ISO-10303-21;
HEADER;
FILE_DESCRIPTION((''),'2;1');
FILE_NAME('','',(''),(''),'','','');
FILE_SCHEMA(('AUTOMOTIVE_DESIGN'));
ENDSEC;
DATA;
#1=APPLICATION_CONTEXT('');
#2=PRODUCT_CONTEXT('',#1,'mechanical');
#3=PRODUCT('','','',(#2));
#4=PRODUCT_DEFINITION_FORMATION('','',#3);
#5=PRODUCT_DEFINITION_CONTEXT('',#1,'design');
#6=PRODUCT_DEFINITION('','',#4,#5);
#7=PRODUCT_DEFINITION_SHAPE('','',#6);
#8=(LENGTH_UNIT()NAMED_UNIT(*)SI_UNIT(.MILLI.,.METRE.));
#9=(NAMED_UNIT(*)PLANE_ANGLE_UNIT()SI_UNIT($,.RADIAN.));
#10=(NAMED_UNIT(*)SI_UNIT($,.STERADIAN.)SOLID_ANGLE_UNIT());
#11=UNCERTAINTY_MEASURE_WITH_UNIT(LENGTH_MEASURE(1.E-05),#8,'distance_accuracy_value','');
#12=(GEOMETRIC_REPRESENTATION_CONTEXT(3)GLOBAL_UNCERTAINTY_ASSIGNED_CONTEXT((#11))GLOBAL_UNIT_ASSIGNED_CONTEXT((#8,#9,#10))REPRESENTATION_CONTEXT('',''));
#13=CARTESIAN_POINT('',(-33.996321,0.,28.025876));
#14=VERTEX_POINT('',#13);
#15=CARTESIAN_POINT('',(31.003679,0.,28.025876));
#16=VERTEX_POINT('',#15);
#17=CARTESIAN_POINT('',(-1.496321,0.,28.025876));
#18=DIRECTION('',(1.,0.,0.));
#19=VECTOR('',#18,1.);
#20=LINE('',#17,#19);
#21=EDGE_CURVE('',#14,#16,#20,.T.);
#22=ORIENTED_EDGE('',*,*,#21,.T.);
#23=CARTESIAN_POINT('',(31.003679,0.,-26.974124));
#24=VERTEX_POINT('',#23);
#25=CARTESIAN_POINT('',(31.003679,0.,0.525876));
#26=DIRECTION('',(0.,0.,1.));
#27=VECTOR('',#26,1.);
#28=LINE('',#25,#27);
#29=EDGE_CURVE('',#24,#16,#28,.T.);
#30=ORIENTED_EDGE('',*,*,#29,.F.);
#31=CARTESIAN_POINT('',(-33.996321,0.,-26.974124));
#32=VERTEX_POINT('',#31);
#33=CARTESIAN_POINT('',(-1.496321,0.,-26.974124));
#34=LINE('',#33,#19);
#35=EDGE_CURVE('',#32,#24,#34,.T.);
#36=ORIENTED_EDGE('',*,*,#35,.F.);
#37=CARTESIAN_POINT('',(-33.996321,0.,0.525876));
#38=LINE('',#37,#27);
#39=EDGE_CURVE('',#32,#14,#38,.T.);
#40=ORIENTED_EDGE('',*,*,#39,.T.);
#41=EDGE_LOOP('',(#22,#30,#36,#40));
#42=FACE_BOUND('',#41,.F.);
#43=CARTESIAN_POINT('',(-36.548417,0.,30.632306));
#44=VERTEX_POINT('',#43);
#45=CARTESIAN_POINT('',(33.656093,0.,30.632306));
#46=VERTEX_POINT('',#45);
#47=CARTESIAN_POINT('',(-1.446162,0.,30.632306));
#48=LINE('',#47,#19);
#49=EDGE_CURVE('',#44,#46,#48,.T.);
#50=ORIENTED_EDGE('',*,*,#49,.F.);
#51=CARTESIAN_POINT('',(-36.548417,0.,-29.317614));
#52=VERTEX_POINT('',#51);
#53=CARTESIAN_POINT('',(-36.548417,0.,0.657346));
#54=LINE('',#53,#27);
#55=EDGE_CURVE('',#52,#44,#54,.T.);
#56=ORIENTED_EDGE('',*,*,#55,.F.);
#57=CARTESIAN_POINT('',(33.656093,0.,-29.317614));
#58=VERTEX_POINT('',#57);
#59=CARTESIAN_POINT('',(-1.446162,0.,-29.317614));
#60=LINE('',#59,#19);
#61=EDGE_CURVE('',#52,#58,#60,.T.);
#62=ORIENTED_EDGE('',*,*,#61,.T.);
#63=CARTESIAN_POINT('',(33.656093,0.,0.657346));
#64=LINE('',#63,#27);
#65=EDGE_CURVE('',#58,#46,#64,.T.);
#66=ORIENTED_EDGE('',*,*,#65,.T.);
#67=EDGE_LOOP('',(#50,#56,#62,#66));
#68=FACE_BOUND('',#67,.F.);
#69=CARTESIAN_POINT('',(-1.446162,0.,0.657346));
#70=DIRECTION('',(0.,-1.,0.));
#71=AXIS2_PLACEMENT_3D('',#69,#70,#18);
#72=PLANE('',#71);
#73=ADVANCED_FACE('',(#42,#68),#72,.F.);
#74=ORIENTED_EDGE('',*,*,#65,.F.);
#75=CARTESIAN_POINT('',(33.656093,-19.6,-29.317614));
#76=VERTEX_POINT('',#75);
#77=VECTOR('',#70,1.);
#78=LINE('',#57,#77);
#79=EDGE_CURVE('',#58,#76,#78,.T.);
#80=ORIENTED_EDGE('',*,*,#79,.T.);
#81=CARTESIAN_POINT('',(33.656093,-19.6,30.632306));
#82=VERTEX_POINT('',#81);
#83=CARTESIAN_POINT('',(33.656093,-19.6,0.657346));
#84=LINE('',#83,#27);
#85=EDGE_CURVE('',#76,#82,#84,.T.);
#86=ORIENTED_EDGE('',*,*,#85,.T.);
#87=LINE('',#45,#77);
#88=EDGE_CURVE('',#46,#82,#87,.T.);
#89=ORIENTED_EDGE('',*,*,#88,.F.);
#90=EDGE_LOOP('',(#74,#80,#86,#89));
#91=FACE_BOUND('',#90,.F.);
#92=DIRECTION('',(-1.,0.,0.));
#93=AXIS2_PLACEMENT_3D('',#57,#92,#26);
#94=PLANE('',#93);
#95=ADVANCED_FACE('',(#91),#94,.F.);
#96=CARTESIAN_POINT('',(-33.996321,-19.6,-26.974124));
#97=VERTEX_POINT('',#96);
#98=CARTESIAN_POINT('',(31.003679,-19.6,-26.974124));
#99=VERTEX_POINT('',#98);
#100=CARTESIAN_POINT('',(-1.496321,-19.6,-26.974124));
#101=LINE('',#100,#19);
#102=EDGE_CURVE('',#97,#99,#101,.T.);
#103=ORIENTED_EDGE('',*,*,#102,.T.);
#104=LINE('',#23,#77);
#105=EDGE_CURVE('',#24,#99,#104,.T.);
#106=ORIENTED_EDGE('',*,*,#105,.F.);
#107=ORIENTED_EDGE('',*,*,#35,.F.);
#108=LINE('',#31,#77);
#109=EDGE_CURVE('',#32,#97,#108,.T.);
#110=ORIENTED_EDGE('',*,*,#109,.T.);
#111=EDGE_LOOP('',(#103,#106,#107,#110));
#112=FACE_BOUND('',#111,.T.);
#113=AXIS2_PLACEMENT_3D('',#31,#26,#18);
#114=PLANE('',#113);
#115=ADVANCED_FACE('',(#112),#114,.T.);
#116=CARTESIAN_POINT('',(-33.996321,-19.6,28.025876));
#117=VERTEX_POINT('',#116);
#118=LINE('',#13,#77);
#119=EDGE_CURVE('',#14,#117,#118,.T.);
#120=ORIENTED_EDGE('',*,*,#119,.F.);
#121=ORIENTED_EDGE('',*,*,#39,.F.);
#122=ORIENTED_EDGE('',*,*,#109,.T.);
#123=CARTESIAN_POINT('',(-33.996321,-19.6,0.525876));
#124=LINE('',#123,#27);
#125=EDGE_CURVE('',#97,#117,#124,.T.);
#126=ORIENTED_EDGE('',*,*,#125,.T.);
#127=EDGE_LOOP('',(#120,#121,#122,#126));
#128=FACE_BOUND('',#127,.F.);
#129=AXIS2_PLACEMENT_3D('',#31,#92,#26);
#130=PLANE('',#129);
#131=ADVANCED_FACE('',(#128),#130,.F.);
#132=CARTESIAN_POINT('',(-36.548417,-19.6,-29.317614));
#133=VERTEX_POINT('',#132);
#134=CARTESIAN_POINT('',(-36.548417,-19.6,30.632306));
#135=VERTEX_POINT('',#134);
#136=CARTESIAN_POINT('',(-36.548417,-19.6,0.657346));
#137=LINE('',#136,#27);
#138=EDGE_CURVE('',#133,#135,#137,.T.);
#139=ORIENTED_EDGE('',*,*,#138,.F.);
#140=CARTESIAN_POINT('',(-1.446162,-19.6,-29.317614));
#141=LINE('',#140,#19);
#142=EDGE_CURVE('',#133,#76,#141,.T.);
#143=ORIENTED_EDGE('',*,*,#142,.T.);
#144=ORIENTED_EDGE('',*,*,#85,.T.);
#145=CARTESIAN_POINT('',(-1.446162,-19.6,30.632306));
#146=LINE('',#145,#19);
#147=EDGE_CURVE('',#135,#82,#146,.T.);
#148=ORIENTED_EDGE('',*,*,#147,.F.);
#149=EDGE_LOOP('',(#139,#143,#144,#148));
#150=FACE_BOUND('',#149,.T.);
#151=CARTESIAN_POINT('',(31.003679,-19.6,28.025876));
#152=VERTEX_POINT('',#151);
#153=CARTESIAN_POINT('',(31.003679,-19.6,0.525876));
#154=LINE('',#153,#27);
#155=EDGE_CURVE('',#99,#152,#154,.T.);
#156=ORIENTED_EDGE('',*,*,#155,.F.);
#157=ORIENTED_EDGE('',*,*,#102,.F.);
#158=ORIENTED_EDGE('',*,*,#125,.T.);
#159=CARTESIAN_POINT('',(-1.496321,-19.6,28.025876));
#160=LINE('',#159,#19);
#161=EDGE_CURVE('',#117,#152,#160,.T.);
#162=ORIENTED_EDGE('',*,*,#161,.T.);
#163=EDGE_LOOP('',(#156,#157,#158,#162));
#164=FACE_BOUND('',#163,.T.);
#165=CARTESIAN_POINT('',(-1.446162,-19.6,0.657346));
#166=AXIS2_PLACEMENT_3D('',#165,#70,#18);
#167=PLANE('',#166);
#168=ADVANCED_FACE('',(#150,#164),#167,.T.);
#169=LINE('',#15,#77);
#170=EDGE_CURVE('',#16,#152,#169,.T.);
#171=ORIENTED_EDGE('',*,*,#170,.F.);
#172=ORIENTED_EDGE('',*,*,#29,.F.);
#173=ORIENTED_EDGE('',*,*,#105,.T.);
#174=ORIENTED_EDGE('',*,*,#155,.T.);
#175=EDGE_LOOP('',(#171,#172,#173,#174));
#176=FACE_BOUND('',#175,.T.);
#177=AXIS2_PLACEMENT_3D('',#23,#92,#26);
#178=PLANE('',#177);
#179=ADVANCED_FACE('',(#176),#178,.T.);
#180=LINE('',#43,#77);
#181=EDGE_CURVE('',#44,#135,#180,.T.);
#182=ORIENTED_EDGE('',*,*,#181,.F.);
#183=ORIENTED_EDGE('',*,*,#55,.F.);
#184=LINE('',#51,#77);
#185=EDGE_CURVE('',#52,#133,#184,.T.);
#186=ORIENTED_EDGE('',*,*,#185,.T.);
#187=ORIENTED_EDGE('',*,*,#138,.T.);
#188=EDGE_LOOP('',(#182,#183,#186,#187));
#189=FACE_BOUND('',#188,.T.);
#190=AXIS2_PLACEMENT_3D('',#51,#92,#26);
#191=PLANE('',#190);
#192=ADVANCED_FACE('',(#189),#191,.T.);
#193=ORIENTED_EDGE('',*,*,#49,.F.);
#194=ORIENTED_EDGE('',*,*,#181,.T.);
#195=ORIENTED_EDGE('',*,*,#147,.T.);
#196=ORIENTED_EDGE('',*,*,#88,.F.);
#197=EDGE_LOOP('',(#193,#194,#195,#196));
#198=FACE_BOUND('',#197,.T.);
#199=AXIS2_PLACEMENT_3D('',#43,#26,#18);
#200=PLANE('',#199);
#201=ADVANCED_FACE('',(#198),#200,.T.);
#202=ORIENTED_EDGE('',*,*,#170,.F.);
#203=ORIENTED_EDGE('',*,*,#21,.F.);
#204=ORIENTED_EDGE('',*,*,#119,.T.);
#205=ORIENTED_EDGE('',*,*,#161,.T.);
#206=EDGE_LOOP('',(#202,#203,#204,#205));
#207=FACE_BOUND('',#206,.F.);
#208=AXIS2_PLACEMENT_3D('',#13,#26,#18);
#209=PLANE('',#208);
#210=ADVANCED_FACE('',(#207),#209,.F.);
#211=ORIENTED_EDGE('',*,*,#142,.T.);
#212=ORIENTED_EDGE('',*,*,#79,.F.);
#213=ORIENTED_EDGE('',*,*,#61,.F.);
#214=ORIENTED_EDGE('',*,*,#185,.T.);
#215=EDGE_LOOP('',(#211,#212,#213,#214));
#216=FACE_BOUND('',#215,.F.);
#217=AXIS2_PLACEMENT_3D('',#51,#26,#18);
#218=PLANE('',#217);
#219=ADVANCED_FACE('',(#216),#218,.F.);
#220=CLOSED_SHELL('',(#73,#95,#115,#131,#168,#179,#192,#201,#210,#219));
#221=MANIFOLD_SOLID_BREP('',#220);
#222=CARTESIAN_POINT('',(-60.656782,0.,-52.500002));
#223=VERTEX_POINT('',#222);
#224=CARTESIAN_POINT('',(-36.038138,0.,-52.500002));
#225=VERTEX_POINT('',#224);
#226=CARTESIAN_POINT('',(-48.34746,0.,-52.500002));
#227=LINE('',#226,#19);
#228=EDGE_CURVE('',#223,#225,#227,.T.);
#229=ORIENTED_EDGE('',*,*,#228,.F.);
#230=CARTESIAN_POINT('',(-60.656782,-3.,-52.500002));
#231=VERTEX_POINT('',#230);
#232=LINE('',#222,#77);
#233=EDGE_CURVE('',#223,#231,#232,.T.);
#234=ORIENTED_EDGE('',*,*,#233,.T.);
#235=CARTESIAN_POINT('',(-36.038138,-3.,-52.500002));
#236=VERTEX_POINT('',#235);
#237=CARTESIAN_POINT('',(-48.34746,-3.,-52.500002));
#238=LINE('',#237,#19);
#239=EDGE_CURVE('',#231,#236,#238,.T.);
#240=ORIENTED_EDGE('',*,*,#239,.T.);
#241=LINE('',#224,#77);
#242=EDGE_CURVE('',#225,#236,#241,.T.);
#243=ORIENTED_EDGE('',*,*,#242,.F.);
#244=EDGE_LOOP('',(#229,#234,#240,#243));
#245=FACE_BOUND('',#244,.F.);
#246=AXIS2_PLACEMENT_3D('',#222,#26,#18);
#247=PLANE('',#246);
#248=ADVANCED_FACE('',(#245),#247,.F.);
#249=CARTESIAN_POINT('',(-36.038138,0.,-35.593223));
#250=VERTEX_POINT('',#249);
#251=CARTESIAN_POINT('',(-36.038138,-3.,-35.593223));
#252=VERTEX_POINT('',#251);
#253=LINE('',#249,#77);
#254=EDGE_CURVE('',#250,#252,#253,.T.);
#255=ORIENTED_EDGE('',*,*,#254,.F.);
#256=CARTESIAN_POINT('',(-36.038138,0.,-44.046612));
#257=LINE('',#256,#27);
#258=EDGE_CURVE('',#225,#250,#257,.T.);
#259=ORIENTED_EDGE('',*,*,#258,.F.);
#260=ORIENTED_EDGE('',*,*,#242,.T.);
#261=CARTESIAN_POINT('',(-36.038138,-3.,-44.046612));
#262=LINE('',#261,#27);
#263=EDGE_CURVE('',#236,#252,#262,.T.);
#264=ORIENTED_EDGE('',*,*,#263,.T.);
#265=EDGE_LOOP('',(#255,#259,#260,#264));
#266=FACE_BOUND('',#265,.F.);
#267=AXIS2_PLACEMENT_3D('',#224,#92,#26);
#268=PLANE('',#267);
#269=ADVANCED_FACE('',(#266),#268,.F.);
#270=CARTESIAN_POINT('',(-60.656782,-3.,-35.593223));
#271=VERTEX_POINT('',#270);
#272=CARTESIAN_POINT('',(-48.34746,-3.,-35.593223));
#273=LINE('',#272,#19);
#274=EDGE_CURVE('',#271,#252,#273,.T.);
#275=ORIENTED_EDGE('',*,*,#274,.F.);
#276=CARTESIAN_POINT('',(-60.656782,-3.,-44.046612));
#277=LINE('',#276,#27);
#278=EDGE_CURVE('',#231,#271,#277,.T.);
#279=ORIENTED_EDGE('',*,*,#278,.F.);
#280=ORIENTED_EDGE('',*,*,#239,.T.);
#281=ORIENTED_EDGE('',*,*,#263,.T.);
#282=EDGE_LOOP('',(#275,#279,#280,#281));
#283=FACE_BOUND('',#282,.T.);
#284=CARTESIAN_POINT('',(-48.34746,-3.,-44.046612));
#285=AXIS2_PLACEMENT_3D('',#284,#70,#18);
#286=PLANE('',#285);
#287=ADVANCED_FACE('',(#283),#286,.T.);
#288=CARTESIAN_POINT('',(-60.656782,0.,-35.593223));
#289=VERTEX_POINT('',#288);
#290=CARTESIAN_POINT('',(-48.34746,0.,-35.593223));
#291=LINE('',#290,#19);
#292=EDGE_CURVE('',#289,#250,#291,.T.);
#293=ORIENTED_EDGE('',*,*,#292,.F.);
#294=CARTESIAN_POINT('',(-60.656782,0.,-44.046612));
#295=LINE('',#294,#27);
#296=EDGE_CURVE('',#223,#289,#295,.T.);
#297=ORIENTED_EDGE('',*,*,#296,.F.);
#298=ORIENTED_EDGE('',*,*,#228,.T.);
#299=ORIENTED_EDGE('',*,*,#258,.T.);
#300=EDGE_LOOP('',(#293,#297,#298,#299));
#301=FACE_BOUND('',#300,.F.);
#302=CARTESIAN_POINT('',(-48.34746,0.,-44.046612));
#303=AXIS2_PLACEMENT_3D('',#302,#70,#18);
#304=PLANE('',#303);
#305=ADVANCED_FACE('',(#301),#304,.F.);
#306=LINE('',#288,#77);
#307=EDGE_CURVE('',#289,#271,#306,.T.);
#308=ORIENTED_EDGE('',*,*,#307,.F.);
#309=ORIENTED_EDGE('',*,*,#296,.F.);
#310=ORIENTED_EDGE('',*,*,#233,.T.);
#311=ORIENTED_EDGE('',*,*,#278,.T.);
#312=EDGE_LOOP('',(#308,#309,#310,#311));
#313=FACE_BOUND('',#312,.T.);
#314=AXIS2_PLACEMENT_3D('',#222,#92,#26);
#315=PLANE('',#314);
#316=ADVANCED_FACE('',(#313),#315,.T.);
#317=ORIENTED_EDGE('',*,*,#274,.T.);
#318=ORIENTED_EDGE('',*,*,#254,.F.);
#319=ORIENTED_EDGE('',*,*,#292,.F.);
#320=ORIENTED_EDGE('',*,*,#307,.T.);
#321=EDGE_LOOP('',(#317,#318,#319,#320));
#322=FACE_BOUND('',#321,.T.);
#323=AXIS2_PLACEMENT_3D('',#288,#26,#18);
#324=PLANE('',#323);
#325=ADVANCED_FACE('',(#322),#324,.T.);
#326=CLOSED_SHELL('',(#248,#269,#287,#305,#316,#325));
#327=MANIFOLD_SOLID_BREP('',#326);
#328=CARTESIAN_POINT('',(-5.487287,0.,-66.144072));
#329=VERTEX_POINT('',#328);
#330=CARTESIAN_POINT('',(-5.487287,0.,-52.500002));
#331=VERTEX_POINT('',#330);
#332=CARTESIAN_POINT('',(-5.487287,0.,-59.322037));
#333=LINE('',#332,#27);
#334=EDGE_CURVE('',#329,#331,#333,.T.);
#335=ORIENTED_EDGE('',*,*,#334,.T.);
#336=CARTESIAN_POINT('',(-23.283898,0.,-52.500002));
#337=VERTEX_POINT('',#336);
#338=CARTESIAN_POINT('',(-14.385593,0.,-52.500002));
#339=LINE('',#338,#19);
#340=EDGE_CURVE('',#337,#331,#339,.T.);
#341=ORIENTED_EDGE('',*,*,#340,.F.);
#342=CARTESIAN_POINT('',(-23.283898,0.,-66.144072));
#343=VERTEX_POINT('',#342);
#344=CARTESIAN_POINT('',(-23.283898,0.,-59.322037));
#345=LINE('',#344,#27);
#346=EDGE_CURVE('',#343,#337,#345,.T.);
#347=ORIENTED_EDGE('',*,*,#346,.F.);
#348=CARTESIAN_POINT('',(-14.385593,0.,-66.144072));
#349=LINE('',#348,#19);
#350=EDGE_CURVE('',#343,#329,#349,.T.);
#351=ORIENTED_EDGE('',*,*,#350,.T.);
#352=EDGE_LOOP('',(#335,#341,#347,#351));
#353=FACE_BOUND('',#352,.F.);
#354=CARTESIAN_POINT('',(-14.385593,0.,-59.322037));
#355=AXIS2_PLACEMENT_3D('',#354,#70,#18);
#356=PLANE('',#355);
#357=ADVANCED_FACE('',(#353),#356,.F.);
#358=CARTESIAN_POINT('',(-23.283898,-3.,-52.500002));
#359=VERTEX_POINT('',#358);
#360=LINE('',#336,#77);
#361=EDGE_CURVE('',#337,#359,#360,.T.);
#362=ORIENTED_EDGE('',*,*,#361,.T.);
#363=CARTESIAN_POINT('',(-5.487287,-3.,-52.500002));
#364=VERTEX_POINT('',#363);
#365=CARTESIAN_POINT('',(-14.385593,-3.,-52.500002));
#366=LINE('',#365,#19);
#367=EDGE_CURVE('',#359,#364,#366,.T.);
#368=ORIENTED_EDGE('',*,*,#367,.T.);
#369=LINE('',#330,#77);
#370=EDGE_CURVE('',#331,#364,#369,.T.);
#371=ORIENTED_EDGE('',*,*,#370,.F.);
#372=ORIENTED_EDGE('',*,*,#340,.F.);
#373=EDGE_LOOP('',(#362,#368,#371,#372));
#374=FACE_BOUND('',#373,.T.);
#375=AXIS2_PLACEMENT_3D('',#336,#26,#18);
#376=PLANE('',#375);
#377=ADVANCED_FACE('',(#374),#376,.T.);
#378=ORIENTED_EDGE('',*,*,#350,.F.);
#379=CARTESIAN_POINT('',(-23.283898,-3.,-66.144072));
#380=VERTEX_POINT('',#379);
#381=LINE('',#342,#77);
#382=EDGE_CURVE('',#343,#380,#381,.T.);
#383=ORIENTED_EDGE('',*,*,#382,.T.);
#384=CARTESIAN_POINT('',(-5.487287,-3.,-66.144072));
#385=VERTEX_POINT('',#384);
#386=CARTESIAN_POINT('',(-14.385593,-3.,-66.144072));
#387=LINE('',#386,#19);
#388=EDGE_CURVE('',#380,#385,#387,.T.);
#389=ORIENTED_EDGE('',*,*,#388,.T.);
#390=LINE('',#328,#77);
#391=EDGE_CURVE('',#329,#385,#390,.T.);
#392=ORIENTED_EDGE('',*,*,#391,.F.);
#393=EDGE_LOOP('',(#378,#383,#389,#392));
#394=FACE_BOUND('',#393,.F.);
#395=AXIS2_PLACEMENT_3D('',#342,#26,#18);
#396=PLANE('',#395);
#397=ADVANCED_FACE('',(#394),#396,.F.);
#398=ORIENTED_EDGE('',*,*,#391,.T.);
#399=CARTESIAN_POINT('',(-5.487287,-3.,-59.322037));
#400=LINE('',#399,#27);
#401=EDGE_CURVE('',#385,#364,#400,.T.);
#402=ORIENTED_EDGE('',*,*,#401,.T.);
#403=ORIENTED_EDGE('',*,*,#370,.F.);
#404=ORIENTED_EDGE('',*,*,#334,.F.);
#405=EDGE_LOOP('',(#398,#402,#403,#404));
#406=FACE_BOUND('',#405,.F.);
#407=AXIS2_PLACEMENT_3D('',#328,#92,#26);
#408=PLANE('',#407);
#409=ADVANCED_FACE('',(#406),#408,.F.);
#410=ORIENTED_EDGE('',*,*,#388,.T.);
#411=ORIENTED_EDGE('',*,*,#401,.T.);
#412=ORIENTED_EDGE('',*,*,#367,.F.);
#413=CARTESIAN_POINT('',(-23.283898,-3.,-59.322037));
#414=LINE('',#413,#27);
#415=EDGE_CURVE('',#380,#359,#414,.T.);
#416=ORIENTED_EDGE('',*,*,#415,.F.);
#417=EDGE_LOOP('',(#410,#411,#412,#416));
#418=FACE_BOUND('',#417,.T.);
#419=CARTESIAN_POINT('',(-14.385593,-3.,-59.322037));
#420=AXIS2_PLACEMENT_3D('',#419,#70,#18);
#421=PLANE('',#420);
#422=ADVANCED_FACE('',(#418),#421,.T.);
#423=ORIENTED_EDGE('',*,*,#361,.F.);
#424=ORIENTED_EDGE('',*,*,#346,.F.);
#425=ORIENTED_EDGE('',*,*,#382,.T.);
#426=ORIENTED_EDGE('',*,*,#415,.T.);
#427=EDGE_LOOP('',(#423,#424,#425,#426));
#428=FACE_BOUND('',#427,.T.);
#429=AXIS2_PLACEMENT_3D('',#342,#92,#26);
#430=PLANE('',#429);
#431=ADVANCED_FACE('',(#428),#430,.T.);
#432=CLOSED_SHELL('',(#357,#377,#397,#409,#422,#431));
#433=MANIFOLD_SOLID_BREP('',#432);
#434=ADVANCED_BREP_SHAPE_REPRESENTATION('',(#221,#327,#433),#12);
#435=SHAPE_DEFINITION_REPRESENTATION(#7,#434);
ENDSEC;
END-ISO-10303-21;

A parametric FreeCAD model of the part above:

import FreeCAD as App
import Part
import Sketcher

V = App.Vector
Q = App.Units.Quantity

doc = App.newDocument("Part")
body = doc.addObject("PartDesign::Body", "Body")

sketch1 = doc.addObject("Sketcher::SketchObject", "Sketch")
body.addObject(sketch1)
sketch1.AttachmentSupport = (doc.XZ_Plane, [""])
sketch1.MapMode = "FlatFace"
sketch1.addGeometry([
    Part.LineSegment(V(-37, 31, 0), V(-37, -29, 0)),
    Part.LineSegment(V(-37, -29, 0), V(34, -29, 0)),
    Part.LineSegment(V(34, -29, 0), V(34, 31, 0)),
    Part.LineSegment(V(34, 31, 0), V(-37, 31, 0)),
    Part.LineSegment(V(31, -27, 0), V(-34, -27, 0)),
    Part.LineSegment(V(-34, -27, 0), V(-34, 28, 0)),
    Part.LineSegment(V(-34, 28, 0), V(31, 28, 0)),
    Part.LineSegment(V(31, 28, 0), V(31, -27, 0)),
], False)
sketch1.addConstraint([
    Sketcher.Constraint("Coincident", 0, 2, 1, 1),
    Sketcher.Constraint("Coincident", 1, 2, 2, 1),
    Sketcher.Constraint("Coincident", 2, 2, 3, 1),
    Sketcher.Constraint("Coincident", 3, 2, 0, 1),
    Sketcher.Constraint("Coincident", 4, 2, 5, 1),
    Sketcher.Constraint("Coincident", 5, 2, 6, 1),
    Sketcher.Constraint("Coincident", 6, 2, 7, 1),
    Sketcher.Constraint("Coincident", 7, 2, 4, 1),
    Sketcher.Constraint("Vertical", 0),
    Sketcher.Constraint("Horizontal", 1),
    Sketcher.Constraint("Vertical", 2),
    Sketcher.Constraint("Horizontal", 3),
    Sketcher.Constraint("Horizontal", 4),
    Sketcher.Constraint("Vertical", 5),
    Sketcher.Constraint("Horizontal", 6),
    Sketcher.Constraint("Vertical", 7),
    Sketcher.Constraint("DistanceX", 4, 2, 4, 1, Q("65 mm")),
    Sketcher.Constraint("DistanceY", 5, 1, 5, 2, Q("55 mm")),
    Sketcher.Constraint("DistanceX", 1, 1, 1, 2, Q("70.204511 mm")),
    Sketcher.Constraint("DistanceY", 0, 2, 0, 1, Q("59.94992 mm")),
    Sketcher.Constraint("DistanceX", 4, 2, -1, 1, Q("33.996321 mm")),
    Sketcher.Constraint("DistanceY", 0, 2, 4, 2, Q("2.34349 mm")),
    Sketcher.Constraint("DistanceX", 0, 2, -1, 1, Q("36.548417 mm")),
    Sketcher.Constraint("DistanceY", 0, 2, -1, 1, Q("29.317614 mm")),
])
pad1 = doc.addObject("PartDesign::Pad", "Pad")
body.addObject(pad1)
pad1.Profile = sketch1
pad1.Length = 19.6
body2 = doc.addObject("PartDesign::Body", "Body001")
body2.AllowCompound = True

sketch2 = doc.addObject("Sketcher::SketchObject", "Sketch001")
body2.addObject(sketch2)
sketch2.AttachmentSupport = (doc.getObject("XZ_Plane001"), [""])
sketch2.MapMode = "FlatFace"
sketch2.addGeometry([
    Part.LineSegment(V(-61, -36, 0), V(-61, -53, 0)),
    Part.LineSegment(V(-61, -53, 0), V(-36, -53, 0)),
    Part.LineSegment(V(-36, -53, 0), V(-36, -36, 0)),
    Part.LineSegment(V(-36, -36, 0), V(-61, -36, 0)),
    Part.LineSegment(V(-23, -53, 0), V(-23, -66, 0)),
    Part.LineSegment(V(-23, -66, 0), V(-5, -66, 0)),
    Part.LineSegment(V(-5, -66, 0), V(-5, -53, 0)),
    Part.LineSegment(V(-5, -53, 0), V(-23, -53, 0)),
], False)
sketch2.addConstraint([
    Sketcher.Constraint("Coincident", 0, 2, 1, 1),
    Sketcher.Constraint("Coincident", 1, 2, 2, 1),
    Sketcher.Constraint("Coincident", 2, 2, 3, 1),
    Sketcher.Constraint("Coincident", 3, 2, 0, 1),
    Sketcher.Constraint("Coincident", 4, 2, 5, 1),
    Sketcher.Constraint("Coincident", 5, 2, 6, 1),
    Sketcher.Constraint("Coincident", 6, 2, 7, 1),
    Sketcher.Constraint("Coincident", 7, 2, 4, 1),
    Sketcher.Constraint("Vertical", 0),
    Sketcher.Constraint("Horizontal", 1),
    Sketcher.Constraint("Vertical", 2),
    Sketcher.Constraint("Horizontal", 3),
    Sketcher.Constraint("Vertical", 4),
    Sketcher.Constraint("Horizontal", 5),
    Sketcher.Constraint("Vertical", 6),
    Sketcher.Constraint("Horizontal", 7),
    Sketcher.Constraint("Horizontal", 1, 2, 6, 2),
    Sketcher.Constraint("DistanceY", 0, 2, -1, 1, Q("52.500002 mm")),
    Sketcher.Constraint("DistanceX", 5, 1, 5, 2, Q("17.796611 mm")),
    Sketcher.Constraint("DistanceY", 0, 2, 0, 1, Q("16.906779 mm")),
    Sketcher.Constraint("DistanceY", 4, 2, 4, 1, Q("13.64407 mm")),
    Sketcher.Constraint("DistanceX", 4, 2, -1, 1, Q("23.283898 mm")),
    Sketcher.Constraint("DistanceX", 1, 1, 1, 2, Q("24.618644 mm")),
    Sketcher.Constraint("DistanceX", 1, 2, 4, 2, Q("12.754239 mm")),
])
pad2 = doc.addObject("PartDesign::Pad", "Pad001")
body2.addObject(pad2)
pad2.Profile = sketch2
pad2.Length = 3

doc.recompute()
